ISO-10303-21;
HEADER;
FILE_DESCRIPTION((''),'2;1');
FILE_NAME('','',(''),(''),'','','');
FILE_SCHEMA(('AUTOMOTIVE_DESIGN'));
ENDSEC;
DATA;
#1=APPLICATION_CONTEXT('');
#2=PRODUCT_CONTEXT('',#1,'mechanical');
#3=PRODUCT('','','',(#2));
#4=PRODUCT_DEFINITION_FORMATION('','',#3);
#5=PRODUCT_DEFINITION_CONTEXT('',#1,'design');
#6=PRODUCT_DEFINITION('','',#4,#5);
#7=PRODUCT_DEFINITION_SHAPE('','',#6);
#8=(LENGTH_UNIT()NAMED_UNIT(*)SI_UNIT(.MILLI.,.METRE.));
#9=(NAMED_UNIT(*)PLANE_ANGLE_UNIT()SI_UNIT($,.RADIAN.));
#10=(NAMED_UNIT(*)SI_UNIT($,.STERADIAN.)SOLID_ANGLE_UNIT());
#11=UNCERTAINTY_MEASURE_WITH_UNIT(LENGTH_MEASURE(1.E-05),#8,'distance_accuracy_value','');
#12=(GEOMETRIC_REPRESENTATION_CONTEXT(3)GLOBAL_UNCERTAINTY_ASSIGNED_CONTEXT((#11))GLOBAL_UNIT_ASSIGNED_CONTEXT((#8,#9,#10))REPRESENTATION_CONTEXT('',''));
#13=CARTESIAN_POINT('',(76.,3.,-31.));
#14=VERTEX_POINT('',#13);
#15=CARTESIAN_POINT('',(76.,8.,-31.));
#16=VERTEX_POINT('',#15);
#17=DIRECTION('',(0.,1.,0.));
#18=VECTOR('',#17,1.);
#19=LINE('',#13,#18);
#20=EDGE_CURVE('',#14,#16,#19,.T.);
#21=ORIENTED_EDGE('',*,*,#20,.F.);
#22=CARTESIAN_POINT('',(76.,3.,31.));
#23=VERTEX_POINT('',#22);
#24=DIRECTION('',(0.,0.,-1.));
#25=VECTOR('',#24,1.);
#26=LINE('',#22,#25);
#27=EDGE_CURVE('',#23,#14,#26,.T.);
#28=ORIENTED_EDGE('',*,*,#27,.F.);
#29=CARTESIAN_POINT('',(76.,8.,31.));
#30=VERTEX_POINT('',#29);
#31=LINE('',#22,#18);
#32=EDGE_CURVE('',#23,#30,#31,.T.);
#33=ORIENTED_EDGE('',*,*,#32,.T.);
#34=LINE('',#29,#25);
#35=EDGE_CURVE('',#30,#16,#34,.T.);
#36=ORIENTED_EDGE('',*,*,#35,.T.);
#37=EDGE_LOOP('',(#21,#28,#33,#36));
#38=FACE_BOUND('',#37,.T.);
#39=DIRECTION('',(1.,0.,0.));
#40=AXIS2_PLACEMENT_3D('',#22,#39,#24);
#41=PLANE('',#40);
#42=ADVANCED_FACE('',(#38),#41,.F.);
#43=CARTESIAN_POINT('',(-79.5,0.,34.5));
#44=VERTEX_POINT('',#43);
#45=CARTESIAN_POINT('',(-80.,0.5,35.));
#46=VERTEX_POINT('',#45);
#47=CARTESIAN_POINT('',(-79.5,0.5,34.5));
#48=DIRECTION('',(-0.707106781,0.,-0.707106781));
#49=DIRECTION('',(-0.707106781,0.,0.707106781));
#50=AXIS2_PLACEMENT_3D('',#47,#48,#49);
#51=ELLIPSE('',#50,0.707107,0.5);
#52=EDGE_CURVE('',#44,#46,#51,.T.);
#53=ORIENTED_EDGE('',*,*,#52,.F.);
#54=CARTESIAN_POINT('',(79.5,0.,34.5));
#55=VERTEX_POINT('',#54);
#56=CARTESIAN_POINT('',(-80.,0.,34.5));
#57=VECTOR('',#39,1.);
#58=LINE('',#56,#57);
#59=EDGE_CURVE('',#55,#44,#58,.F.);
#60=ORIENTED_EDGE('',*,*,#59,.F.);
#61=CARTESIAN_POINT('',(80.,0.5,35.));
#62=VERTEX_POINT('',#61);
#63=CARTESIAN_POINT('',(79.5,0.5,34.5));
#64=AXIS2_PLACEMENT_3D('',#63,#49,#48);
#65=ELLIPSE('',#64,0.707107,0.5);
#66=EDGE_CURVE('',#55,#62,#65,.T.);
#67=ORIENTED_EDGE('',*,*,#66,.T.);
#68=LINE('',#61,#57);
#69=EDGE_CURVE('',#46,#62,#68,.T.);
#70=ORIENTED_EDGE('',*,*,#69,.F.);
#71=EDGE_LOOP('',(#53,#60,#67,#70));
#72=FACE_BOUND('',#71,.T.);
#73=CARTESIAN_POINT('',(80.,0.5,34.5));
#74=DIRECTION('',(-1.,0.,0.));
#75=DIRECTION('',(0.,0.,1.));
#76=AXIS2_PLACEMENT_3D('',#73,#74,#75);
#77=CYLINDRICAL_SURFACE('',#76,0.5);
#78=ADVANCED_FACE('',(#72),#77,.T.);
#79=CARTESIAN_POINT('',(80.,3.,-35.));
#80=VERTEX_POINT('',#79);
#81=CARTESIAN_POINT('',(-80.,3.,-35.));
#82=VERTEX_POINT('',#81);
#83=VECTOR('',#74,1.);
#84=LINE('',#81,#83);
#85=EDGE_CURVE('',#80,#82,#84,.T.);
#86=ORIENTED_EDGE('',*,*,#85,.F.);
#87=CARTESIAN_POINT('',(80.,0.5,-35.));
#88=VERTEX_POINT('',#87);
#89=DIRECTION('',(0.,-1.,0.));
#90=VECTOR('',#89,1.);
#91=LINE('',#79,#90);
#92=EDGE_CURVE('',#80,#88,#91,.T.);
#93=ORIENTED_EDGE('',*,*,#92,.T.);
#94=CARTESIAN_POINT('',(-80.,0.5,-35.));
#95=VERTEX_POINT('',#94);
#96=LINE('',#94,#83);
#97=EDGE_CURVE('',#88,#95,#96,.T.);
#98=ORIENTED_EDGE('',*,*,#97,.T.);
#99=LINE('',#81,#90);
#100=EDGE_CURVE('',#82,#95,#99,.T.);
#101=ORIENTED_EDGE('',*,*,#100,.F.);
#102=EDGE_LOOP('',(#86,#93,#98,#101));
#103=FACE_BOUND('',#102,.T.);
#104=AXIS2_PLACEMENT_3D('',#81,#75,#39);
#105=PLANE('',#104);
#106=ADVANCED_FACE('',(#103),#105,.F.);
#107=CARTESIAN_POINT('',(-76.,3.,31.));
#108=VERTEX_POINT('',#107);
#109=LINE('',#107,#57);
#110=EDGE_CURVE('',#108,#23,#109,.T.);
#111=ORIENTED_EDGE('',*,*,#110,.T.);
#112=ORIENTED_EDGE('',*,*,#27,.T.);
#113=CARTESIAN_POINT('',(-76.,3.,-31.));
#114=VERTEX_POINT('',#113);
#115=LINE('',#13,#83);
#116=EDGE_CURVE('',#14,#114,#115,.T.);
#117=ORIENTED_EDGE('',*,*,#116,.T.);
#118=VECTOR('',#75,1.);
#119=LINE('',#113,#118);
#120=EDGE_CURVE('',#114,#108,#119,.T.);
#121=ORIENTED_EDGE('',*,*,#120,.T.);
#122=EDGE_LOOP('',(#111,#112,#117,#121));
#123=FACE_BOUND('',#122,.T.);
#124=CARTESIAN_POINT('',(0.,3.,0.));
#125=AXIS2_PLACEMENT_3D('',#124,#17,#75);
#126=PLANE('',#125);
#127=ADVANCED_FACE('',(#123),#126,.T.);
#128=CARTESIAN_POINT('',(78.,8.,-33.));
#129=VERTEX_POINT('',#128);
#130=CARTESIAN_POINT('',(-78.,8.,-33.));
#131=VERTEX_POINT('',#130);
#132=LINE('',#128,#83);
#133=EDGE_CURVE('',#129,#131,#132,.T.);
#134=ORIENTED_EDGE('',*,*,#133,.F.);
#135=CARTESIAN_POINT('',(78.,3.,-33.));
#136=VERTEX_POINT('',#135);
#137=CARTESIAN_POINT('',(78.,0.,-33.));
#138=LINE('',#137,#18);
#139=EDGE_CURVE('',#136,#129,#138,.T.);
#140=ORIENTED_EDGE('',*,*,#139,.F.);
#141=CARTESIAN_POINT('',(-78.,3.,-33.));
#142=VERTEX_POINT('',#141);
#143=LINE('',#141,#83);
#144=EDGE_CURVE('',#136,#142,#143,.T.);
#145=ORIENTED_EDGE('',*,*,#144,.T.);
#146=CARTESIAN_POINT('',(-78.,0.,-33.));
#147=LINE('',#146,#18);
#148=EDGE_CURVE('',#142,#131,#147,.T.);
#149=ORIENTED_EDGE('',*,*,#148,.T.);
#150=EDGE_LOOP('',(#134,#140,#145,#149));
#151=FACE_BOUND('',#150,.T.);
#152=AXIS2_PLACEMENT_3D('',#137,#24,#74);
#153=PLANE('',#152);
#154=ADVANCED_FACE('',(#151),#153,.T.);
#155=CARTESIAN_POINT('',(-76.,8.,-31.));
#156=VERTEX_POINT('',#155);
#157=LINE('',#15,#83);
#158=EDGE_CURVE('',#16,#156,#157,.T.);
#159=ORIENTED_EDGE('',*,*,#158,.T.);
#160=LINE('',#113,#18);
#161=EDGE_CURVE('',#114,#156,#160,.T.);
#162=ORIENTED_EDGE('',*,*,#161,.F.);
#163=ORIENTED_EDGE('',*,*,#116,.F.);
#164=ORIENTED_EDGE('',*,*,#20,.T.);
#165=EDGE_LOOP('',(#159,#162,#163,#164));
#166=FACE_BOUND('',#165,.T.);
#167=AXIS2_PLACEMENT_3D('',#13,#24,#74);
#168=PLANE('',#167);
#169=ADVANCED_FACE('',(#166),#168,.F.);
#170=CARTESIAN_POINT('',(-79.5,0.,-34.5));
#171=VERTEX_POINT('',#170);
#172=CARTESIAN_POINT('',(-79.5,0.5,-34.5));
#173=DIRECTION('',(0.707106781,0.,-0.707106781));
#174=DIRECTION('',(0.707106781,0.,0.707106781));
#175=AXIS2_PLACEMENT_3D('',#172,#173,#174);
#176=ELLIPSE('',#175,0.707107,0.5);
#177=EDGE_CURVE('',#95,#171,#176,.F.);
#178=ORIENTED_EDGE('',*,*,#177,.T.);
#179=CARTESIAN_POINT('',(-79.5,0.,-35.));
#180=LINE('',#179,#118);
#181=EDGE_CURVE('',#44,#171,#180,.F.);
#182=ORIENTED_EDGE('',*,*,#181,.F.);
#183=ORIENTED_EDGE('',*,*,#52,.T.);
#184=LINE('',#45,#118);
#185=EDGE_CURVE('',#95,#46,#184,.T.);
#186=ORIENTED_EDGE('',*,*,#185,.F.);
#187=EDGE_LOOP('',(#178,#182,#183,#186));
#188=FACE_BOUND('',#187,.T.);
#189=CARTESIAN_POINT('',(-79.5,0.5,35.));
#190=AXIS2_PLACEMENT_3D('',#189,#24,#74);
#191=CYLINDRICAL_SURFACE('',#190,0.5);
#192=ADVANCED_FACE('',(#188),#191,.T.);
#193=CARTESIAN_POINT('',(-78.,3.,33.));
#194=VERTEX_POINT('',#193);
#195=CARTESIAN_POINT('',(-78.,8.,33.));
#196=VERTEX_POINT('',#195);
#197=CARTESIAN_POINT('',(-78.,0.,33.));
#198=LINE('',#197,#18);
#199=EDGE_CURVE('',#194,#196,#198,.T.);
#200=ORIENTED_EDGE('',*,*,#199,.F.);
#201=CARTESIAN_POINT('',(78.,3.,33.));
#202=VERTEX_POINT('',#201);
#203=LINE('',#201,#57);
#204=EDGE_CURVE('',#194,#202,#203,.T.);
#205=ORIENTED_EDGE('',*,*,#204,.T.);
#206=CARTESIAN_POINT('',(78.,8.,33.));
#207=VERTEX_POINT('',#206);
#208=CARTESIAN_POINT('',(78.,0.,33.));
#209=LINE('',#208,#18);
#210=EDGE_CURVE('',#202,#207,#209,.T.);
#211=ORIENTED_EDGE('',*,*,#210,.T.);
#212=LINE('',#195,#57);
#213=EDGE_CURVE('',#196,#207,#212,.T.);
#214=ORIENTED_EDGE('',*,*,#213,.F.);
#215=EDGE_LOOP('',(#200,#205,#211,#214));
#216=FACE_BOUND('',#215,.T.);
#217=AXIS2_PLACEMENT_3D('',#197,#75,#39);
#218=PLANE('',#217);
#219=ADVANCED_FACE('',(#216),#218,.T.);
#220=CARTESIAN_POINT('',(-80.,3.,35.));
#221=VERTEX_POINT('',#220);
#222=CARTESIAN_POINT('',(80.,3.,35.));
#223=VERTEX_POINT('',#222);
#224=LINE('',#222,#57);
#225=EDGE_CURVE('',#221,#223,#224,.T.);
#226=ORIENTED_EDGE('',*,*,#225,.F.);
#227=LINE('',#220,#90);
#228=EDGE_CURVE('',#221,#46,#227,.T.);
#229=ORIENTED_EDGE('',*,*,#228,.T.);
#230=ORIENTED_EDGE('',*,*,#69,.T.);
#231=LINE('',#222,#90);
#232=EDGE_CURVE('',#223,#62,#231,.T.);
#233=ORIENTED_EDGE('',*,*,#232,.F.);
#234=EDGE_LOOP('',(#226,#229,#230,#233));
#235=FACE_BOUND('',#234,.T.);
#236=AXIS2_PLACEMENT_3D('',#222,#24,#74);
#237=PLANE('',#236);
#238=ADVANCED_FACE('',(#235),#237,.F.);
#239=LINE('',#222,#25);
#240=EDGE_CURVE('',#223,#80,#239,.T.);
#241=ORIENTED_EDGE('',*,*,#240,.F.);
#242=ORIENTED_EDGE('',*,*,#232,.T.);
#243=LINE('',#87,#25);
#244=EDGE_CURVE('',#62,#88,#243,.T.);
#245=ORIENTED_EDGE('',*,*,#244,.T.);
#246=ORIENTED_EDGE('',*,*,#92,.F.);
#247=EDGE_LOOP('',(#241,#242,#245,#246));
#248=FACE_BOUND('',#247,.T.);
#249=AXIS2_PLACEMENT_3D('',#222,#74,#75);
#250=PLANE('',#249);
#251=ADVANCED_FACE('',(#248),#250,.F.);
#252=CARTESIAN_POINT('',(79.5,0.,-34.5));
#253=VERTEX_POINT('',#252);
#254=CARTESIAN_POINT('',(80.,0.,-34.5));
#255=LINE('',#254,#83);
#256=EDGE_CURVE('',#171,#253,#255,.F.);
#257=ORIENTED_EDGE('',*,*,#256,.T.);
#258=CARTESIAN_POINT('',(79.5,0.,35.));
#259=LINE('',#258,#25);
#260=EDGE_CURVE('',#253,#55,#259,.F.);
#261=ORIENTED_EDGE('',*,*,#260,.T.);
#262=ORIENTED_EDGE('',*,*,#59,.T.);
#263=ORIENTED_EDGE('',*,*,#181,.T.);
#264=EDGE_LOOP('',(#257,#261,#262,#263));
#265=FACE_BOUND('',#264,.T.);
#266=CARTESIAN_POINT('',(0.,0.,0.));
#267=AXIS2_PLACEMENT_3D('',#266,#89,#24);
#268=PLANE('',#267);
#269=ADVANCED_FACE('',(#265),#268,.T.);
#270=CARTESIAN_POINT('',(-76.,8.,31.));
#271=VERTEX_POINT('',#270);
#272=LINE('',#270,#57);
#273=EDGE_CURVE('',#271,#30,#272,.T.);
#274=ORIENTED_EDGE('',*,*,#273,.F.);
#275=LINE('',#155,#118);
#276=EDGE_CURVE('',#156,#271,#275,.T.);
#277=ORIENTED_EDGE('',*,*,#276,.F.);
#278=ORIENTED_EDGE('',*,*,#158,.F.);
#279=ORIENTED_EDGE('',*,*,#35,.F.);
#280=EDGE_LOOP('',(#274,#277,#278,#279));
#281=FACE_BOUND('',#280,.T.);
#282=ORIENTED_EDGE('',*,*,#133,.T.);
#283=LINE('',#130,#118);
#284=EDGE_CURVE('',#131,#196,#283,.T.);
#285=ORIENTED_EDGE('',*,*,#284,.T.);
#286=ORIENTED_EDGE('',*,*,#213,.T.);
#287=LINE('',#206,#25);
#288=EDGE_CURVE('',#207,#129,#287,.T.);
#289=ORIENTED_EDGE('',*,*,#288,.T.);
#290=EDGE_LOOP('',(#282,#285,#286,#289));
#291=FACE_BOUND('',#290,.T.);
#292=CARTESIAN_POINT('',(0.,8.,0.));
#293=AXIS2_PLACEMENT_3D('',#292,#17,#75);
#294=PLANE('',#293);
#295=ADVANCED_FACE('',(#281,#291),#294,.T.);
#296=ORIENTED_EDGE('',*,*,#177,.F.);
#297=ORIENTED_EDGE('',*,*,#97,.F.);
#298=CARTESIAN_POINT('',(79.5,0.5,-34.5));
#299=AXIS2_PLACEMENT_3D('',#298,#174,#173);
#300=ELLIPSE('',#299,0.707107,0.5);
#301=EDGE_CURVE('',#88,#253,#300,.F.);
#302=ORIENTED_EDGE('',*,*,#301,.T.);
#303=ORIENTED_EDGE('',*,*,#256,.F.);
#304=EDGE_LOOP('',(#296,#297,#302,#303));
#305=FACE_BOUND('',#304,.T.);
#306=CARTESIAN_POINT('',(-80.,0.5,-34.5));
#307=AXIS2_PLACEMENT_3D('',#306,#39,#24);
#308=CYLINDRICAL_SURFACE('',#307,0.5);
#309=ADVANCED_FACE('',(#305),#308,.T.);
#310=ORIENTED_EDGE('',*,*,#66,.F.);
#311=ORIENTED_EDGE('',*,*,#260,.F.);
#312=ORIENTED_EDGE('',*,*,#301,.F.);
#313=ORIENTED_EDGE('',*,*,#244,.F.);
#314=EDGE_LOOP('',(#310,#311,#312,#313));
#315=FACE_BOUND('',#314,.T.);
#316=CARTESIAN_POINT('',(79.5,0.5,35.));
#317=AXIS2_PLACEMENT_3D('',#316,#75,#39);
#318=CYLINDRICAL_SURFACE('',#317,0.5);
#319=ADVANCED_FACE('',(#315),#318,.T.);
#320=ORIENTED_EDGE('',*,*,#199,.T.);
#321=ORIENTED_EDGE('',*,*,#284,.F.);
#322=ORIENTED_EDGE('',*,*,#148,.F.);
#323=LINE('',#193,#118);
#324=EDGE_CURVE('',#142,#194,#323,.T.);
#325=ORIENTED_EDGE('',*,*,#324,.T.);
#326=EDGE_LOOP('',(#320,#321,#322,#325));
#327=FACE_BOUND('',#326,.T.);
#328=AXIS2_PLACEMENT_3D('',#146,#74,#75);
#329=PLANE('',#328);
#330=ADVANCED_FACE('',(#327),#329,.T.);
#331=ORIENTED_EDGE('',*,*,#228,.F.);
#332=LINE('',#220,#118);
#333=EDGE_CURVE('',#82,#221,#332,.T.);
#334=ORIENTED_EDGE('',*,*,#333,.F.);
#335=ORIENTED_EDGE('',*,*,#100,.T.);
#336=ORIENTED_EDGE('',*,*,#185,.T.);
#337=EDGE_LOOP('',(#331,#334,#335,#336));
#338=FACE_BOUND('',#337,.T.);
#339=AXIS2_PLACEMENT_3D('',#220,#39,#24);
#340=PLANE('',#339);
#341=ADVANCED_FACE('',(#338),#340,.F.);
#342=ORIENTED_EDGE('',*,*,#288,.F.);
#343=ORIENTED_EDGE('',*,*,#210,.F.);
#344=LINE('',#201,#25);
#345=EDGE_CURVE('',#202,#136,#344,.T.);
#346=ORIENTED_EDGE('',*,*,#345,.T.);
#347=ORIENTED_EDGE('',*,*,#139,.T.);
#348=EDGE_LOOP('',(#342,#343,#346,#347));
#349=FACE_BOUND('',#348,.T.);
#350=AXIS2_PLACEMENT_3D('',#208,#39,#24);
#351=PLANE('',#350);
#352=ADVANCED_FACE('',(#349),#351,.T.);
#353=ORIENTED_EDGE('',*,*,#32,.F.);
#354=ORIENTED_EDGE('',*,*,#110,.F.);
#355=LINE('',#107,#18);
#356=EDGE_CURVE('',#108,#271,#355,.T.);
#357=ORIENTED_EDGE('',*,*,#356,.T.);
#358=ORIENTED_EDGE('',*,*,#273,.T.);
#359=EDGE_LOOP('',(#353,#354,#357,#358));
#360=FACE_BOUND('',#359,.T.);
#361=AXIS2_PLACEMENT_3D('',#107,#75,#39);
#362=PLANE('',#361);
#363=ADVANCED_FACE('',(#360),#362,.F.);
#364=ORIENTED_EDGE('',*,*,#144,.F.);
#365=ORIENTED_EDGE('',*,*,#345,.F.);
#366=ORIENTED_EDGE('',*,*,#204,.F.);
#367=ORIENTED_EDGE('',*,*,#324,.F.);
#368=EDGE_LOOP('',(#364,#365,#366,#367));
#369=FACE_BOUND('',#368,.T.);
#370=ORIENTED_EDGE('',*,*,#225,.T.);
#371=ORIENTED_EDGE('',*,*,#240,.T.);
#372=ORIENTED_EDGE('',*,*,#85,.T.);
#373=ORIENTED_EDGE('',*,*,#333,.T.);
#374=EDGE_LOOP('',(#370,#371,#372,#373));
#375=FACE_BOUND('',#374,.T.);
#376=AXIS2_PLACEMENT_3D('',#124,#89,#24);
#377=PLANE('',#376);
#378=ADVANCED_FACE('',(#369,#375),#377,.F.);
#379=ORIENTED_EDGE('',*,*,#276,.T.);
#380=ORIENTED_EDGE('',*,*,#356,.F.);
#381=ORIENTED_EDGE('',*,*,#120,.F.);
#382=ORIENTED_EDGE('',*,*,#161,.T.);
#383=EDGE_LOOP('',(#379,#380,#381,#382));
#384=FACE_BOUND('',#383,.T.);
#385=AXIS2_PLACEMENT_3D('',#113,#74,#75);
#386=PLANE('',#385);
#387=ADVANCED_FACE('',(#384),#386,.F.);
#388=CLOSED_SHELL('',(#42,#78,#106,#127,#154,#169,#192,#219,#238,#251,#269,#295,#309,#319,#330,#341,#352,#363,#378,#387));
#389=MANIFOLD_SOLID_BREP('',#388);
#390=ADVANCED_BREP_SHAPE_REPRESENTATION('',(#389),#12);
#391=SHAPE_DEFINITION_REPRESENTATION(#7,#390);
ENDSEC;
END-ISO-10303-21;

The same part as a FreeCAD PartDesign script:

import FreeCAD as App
import Part
import Sketcher
from FreeCAD import Vector


def edges_at(feature, points):
    """Names of the edges that pass closest to the given points."""
    edges = feature.Shape.Edges
    near = lambda p: min(range(len(edges)), key=lambda i: edges[i].distToShape(Part.Vertex(*p))[0])
    return sorted({f"Edge{near(p) + 1}" for p in points})

doc = App.newDocument("Part")
body = doc.addObject("PartDesign::Body", "Body")

# Sketch on XZ plane
sketch1 = body.newObject("Sketcher::SketchObject", "Sketch")
sketch1.AttachmentSupport = (doc.getObject("XZ_Plane"), [""])
sketch1.MapMode = "FlatFace"
sketch1.addGeometry(Part.LineSegment(Vector(-80, -35, 0), Vector(-80, 35, 0)), False)
sketch1.addGeometry(Part.LineSegment(Vector(-80, 35, 0), Vector(80, 35, 0)), False)
sketch1.addGeometry(Part.LineSegment(Vector(80, 35, 0), Vector(80, -35, 0)), False)
sketch1.addGeometry(Part.LineSegment(Vector(80, -35, 0), Vector(-80, -35, 0)), False)
sketch1.addGeometry(Part.LineSegment(Vector(78, 33, 0), Vector(-78, 33, 0)), False)
sketch1.addGeometry(Part.LineSegment(Vector(-78, 33, 0), Vector(-78, -33, 0)), False)
sketch1.addGeometry(Part.LineSegment(Vector(-78, -33, 0), Vector(78, -33, 0)), False)
sketch1.addGeometry(Part.LineSegment(Vector(78, -33, 0), Vector(78, 33, 0)), False)
sketch1.addConstraint(Sketcher.Constraint("Coincident", 0, 2, 1, 1))
sketch1.addConstraint(Sketcher.Constraint("Coincident", 1, 2, 2, 1))
sketch1.addConstraint(Sketcher.Constraint("Coincident", 2, 2, 3, 1))
sketch1.addConstraint(Sketcher.Constraint("Coincident", 3, 2, 0, 1))
sketch1.addConstraint(Sketcher.Constraint("Coincident", 4, 2, 5, 1))
sketch1.addConstraint(Sketcher.Constraint("Coincident", 5, 2, 6, 1))
sketch1.addConstraint(Sketcher.Constraint("Coincident", 6, 2, 7, 1))
sketch1.addConstraint(Sketcher.Constraint("Coincident", 7, 2, 4, 1))
sketch1.addConstraint(Sketcher.Constraint("Vertical", 0))
sketch1.addConstraint(Sketcher.Constraint("Horizontal", 1))
sketch1.addConstraint(Sketcher.Constraint("Vertical", 2))
sketch1.addConstraint(Sketcher.Constraint("Horizontal", 3))
sketch1.addConstraint(Sketcher.Constraint("Horizontal", 4))
sketch1.addConstraint(Sketcher.Constraint("Vertical", 5))
sketch1.addConstraint(Sketcher.Constraint("Horizontal", 6))
sketch1.addConstraint(Sketcher.Constraint("Vertical", 7))
sketch1.addConstraint(Sketcher.Constraint("Symmetric", 0, 2, 2, 2, -1, 1))
sketch1.addConstraint(Sketcher.Constraint("Symmetric", 4, 2, 6, 2, -1, 1))
sketch1.addConstraint(Sketcher.Constraint("DistanceX", 1, 1, 1, 2, 160.0))
sketch1.addConstraint(Sketcher.Constraint("DistanceX", 4, 2, 4, 1, 156.0))
sketch1.addConstraint(Sketcher.Constraint("DistanceY", 0, 1, 0, 2, 70.0))
sketch1.addConstraint(Sketcher.Constraint("DistanceY", 5, 2, 5, 1, 66.0))
pad1 = body.newObject("PartDesign::Pad", "Pad")
pad1.Profile = sketch1
pad1.Length = 3
pad1.Reversed = True

# Sketch on XZ plane
sketch2 = body.newObject("Sketcher::SketchObject", "Sketch001")
sketch2.AttachmentSupport = (doc.getObject("XZ_Plane"), [""])
sketch2.MapMode = "FlatFace"
sketch2.AttachmentOffset = App.Placement(Vector(0, 0, -3), App.Rotation())
sketch2.addGeometry(Part.LineSegment(Vector(-78, -33, 0), Vector(-78, 33, 0)), False)
sketch2.addGeometry(Part.LineSegment(Vector(-78, 33, 0), Vector(78, 33, 0)), False)
sketch2.addGeometry(Part.LineSegment(Vector(78, 33, 0), Vector(78, -33, 0)), False)
sketch2.addGeometry(Part.LineSegment(Vector(78, -33, 0), Vector(-78, -33, 0)), False)
sketch2.addConstraint(Sketcher.Constraint("Coincident", 0, 2, 1, 1))
sketch2.addConstraint(Sketcher.Constraint("Coincident", 1, 2, 2, 1))
sketch2.addConstraint(Sketcher.Constraint("Coincident", 2, 2, 3, 1))
sketch2.addConstraint(Sketcher.Constraint("Coincident", 3, 2, 0, 1))
sketch2.addConstraint(Sketcher.Constraint("Vertical", 0))
sketch2.addConstraint(Sketcher.Constraint("Horizontal", 1))
sketch2.addConstraint(Sketcher.Constraint("Vertical", 2))
sketch2.addConstraint(Sketcher.Constraint("Horizontal", 3))
sketch2.addConstraint(Sketcher.Constraint("Symmetric", 0, 2, 2, 2, -1, 1))
sketch2.addConstraint(Sketcher.Constraint("DistanceX", 1, 1, 1, 2, 156.0))
sketch2.addConstraint(Sketcher.Constraint("DistanceY", 0, 1, 0, 2, 66.0))
pad2 = body.newObject("PartDesign::Pad", "Pad001")
pad2.Profile = sketch2
pad2.Type = "TwoLengths"
pad2.Length = 5
pad2.Length2 = 3
pad2.Reversed = True

# Sketch on XZ plane
sketch3 = body.newObject("Sketcher::SketchObject", "Sketch002")
sketch3.AttachmentSupport = (doc.getObject("XZ_Plane"), [""])
sketch3.MapMode = "FlatFace"
sketch3.AttachmentOffset = App.Placement(Vector(0, 0, -8), App.Rotation())
sketch3.addGeometry(Part.LineSegment(Vector(-76, -31, 0), Vector(-76, 31, 0)), False)
sketch3.addGeometry(Part.LineSegment(Vector(-76, 31, 0), Vector(76, 31, 0)), False)
sketch3.addGeometry(Part.LineSegment(Vector(76, 31, 0), Vector(76, -31, 0)), False)
sketch3.addGeometry(Part.LineSegment(Vector(76, -31, 0), Vector(-76, -31, 0)), False)
sketch3.addConstraint(Sketcher.Constraint("Coincident", 0, 2, 1, 1))
sketch3.addConstraint(Sketcher.Constraint("Coincident", 1, 2, 2, 1))
sketch3.addConstraint(Sketcher.Constraint("Coincident", 2, 2, 3, 1))
sketch3.addConstraint(Sketcher.Constraint("Coincident", 3, 2, 0, 1))
sketch3.addConstraint(Sketcher.Constraint("Vertical", 0))
sketch3.addConstraint(Sketcher.Constraint("Horizontal", 1))
sketch3.addConstraint(Sketcher.Constraint("Vertical", 2))
sketch3.addConstraint(Sketcher.Constraint("Horizontal", 3))
sketch3.addConstraint(Sketcher.Constraint("Symmetric", 0, 2, 2, 2, -1, 1))
sketch3.addConstraint(Sketcher.Constraint("DistanceX", 1, 1, 1, 2, 152.0))
sketch3.addConstraint(Sketcher.Constraint("DistanceY", 0, 1, 0, 2, 62.0))
pocket1 = body.newObject("PartDesign::Pocket", "Pocket")
pocket1.Profile = sketch3
pocket1.Length = 5
pocket1.Reversed = True
doc.recompute()

fillet = body.newObject("PartDesign::Fillet", "Fillet")
fillet.Base = (pocket1, edges_at(pocket1, [
    (0, 0, -35),
    (80, 0, 0),
    (0, 0, 35),
    (-80, 0, 0),
]))
fillet.Radius = 0.5

doc.recompute()
